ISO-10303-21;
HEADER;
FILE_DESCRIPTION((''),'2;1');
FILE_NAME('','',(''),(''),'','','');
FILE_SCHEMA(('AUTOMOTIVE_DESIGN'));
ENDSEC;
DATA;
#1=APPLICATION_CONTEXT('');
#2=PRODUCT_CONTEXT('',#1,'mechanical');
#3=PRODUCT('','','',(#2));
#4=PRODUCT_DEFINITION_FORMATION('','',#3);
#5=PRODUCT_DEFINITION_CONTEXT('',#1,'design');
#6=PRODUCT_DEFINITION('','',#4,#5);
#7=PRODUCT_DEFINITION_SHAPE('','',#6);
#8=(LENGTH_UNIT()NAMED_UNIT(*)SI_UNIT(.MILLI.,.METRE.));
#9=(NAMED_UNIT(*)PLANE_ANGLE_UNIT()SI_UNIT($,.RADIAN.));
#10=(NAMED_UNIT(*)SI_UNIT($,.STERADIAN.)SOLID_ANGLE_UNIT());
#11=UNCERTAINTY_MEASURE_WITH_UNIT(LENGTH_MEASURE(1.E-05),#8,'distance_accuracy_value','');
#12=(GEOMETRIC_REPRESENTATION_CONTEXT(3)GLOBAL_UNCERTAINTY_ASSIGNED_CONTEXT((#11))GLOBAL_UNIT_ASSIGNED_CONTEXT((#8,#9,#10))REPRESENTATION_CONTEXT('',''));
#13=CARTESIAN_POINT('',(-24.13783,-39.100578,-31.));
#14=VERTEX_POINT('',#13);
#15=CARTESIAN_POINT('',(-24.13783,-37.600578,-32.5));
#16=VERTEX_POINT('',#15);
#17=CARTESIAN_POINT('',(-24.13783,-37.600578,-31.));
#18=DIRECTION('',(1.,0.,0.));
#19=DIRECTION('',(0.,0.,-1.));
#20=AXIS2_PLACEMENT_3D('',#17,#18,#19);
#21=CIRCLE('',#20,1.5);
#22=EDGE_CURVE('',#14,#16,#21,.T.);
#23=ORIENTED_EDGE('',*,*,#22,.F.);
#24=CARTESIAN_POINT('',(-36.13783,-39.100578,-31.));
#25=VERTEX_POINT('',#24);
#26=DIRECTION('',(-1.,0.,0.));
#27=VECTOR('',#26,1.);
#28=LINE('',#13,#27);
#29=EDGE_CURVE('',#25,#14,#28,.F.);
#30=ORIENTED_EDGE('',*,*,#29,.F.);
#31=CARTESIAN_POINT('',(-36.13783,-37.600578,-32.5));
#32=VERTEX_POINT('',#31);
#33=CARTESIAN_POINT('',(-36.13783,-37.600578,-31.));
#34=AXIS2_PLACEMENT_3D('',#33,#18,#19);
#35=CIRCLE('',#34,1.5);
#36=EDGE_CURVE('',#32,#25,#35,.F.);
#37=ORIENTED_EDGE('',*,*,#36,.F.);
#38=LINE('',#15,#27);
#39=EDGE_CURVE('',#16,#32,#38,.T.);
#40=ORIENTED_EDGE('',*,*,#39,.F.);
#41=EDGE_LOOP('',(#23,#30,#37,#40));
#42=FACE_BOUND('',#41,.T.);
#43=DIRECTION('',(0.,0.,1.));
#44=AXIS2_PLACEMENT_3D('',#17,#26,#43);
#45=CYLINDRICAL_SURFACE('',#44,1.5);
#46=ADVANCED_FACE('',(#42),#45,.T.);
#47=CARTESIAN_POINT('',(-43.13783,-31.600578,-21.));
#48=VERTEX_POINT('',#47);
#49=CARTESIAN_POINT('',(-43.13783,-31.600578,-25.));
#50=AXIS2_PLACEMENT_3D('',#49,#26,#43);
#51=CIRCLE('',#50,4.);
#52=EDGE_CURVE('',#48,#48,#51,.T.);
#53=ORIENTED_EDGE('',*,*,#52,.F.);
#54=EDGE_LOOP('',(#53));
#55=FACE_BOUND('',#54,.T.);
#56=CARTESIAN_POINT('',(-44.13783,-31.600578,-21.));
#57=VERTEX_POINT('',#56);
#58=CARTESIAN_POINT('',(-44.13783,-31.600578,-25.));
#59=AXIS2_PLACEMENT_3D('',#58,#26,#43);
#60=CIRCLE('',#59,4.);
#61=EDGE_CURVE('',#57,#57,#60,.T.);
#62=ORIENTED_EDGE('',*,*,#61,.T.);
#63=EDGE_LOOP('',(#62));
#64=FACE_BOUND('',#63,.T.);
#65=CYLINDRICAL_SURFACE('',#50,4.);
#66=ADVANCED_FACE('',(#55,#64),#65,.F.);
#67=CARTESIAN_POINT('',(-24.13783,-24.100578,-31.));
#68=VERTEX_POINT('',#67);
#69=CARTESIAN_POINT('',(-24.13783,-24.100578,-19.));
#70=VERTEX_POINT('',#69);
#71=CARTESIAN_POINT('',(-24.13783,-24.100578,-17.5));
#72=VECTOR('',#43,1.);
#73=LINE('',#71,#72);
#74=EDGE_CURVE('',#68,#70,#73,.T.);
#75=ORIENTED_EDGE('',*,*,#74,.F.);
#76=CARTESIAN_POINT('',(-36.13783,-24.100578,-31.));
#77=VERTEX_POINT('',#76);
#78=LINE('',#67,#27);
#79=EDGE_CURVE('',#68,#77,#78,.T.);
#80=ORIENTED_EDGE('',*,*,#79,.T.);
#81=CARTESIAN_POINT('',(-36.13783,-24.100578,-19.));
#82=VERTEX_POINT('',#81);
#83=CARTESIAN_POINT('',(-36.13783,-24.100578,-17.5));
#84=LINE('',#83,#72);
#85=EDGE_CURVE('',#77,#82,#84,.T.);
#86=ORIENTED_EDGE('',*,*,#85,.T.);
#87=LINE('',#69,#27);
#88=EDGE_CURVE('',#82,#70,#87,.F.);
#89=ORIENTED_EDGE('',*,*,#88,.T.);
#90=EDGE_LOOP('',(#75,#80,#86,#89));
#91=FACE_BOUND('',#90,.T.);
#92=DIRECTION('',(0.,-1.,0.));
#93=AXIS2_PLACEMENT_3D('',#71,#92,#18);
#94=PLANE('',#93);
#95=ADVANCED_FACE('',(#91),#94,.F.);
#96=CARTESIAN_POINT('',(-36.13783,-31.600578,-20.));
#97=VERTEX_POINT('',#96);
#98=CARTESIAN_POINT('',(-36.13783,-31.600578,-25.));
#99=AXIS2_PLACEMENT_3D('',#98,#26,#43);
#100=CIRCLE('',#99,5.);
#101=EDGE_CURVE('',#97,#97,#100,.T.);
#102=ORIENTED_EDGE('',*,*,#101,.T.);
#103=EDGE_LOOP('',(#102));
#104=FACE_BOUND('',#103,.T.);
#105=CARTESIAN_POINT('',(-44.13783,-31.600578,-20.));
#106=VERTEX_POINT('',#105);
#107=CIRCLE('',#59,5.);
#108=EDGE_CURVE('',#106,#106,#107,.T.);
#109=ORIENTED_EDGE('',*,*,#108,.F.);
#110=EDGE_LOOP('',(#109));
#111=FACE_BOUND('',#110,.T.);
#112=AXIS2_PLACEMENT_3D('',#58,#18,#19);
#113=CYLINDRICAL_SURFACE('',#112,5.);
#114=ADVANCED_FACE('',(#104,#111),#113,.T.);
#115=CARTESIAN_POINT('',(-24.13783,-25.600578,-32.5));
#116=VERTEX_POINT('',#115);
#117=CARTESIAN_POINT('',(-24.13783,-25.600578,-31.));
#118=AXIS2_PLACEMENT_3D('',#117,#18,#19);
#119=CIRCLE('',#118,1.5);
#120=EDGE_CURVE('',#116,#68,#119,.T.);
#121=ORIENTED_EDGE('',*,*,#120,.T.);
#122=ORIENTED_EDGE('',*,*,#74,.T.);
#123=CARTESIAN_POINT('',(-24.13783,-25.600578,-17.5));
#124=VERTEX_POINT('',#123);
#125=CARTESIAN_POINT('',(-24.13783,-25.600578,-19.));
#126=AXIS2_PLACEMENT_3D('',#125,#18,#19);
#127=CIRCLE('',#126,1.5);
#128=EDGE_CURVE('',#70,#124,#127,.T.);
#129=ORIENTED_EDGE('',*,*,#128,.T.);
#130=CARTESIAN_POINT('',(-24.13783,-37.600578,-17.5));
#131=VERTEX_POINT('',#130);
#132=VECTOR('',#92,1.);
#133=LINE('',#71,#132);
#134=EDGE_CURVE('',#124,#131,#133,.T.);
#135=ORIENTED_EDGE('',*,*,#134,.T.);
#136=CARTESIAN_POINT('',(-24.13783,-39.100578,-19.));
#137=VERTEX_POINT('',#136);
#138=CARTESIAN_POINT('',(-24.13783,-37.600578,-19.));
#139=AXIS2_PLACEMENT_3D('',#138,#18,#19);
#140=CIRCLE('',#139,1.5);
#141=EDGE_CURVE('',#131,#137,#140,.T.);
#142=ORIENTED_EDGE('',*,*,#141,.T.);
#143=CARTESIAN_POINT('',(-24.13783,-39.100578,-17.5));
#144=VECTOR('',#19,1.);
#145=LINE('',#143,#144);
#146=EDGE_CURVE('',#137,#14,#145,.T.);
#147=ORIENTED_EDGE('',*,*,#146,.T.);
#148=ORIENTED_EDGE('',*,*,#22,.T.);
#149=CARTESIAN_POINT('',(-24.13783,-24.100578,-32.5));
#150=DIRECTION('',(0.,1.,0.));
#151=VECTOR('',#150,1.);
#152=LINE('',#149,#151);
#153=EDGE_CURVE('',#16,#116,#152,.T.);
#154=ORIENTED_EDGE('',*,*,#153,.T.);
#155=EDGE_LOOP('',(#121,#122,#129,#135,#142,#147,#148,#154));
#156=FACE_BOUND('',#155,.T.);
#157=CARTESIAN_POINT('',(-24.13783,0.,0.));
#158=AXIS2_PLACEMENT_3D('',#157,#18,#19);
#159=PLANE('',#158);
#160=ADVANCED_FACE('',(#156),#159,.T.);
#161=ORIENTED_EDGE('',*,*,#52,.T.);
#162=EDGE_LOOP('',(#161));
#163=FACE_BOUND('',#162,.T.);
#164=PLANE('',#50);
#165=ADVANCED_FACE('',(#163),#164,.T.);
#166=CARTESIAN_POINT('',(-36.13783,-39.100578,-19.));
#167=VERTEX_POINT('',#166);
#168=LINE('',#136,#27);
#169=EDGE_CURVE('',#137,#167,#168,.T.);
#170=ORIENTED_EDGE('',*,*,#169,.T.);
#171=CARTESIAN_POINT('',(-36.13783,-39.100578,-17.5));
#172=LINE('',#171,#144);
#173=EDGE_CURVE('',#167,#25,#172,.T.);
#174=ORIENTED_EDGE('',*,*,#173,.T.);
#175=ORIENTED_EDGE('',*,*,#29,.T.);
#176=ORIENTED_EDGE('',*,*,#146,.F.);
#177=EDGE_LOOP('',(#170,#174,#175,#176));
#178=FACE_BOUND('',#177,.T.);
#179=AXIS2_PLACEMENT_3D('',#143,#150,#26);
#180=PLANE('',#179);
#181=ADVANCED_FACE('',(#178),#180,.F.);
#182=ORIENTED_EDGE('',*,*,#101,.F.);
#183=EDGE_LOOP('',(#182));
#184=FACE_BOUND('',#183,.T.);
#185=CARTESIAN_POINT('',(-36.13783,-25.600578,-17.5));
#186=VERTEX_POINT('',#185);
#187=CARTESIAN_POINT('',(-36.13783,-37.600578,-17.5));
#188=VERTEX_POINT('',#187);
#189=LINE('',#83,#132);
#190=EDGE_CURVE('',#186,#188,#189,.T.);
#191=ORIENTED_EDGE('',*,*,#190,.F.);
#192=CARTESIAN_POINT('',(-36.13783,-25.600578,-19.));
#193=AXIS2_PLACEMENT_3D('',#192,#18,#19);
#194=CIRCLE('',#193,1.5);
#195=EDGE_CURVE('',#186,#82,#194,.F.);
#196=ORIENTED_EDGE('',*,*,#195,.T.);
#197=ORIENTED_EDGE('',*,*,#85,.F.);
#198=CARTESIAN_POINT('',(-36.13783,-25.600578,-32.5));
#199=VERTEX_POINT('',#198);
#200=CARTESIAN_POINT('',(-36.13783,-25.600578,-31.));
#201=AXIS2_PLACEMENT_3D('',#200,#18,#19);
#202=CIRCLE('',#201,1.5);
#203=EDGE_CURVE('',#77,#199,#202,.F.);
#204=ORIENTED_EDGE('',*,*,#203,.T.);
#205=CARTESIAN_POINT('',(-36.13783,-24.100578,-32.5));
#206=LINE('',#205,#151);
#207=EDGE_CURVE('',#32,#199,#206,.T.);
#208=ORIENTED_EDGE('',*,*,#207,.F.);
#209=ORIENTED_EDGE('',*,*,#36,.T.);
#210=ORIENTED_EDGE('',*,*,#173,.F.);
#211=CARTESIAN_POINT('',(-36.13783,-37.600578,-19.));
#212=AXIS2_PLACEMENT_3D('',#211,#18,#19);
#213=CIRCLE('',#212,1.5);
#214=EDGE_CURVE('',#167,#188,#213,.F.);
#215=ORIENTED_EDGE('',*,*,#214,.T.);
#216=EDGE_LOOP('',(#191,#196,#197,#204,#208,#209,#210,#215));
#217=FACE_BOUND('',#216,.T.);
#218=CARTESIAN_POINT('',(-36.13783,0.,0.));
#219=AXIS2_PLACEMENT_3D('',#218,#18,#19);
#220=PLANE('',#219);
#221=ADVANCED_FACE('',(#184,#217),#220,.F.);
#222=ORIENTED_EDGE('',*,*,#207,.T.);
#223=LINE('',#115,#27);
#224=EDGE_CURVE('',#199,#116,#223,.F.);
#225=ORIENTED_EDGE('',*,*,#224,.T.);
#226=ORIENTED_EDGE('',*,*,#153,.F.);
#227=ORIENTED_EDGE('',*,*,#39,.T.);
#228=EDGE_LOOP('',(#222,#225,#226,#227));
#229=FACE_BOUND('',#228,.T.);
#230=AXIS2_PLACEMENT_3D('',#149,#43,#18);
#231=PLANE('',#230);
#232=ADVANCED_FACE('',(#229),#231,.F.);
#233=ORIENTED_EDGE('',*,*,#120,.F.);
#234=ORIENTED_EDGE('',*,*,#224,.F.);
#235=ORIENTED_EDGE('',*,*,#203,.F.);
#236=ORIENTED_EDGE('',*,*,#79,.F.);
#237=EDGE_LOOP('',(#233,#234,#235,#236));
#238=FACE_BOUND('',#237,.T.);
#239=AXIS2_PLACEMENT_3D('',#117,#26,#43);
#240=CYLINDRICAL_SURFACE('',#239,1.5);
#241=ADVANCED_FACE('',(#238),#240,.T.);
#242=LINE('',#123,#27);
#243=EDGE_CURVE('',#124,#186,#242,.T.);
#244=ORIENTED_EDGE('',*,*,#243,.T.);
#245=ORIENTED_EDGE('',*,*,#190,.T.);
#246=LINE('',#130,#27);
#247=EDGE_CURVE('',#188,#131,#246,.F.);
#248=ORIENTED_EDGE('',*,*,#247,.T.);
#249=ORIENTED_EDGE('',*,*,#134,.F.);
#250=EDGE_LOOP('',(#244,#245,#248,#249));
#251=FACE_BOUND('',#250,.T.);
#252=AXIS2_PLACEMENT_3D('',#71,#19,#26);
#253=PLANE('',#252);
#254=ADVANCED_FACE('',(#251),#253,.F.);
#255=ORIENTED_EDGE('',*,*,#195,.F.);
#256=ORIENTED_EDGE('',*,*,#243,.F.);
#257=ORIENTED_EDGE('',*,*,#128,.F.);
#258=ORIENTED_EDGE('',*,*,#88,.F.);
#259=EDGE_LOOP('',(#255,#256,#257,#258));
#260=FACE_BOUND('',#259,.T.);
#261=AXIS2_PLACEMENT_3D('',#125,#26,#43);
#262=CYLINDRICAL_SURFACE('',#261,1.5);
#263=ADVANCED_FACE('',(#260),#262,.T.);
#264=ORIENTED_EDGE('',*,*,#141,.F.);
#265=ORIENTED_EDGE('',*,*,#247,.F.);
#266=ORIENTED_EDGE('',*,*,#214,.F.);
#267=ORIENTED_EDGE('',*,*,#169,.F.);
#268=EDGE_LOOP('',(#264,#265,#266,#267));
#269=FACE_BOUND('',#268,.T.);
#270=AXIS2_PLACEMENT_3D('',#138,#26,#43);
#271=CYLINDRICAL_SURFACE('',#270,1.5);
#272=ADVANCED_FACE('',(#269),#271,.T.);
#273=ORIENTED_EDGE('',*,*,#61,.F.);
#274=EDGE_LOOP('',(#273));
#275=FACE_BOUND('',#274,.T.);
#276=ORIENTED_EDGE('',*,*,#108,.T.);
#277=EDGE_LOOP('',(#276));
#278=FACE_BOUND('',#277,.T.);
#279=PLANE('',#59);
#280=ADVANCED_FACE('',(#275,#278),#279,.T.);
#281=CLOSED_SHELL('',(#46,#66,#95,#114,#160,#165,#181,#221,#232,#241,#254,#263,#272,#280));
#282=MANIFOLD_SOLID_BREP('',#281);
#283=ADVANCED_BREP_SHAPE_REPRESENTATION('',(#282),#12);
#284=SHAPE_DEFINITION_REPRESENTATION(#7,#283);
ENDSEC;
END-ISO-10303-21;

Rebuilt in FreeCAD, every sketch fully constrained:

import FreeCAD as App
import Part
import Sketcher
from FreeCAD import Vector


def edges_at(feature, points):
    """Names of the edges that pass closest to the given points."""
    edges = feature.Shape.Edges
    near = lambda p: min(range(len(edges)), key=lambda i: edges[i].distToShape(Part.Vertex(*p))[0])
    return sorted({f"Edge{near(p) + 1}" for p in points})


def add_polygon(sketch, points):
    """Adds a closed chain of lines whose ends are joined by coincident constraints."""
    first, n = sketch.GeometryCount, len(points)
    for a, b in zip(points, points[1:] + points[:1]):
        sketch.addGeometry(Part.LineSegment(App.Vector(*a, 0), App.Vector(*b, 0)), False)
    for i in range(n):
        sketch.addConstraint(Sketcher.Constraint("Coincident", first + i, 2, first + (i + 1) % n, 1))

doc = App.newDocument("Part")
body = doc.addObject("PartDesign::Body", "Body")

sketch1 = body.newObject("Sketcher::SketchObject", "Sketch")
sketch1.AttachmentSupport = (doc.getObject("YZ_Plane"), [""])
sketch1.MapMode = "FlatFace"
sketch1.AttachmentOffset = App.Placement(Vector(0, 0, -36.13783), App.Rotation())
sketch1.addGeometry(Part.Circle(Vector(-32, -25, 0), Vector(0, 0, 1), 5), False)
sketch1.addConstraint(Sketcher.Constraint("Diameter", 0, 10.0))
sketch1.addConstraint(Sketcher.Constraint("DistanceY", 0, 3, -1, 1, 25.0))
sketch1.addConstraint(Sketcher.Constraint("DistanceX", 0, 3, -1, 1, 31.600578))
pad1 = body.newObject("PartDesign::Pad", "Pad")
pad1.Profile = sketch1
pad1.Length = 8
pad1.Reversed = True

sketch2 = body.newObject("Sketcher::SketchObject", "Sketch001")
sketch2.AttachmentSupport = (doc.getObject("YZ_Plane"), [""])
sketch2.MapMode = "FlatFace"
sketch2.AttachmentOffset = App.Placement(Vector(0, 0, -36.13783), App.Rotation())
add_polygon(sketch2, [(-24, -18), (-39, -18), (-39, -32), (-24, -32)])
sketch2.addConstraint(Sketcher.Constraint("Horizontal", 0))
sketch2.addConstraint(Sketcher.Constraint("Vertical", 1))
sketch2.addConstraint(Sketcher.Constraint("Horizontal", 2))
sketch2.addConstraint(Sketcher.Constraint("Vertical", 3))
sketch2.addConstraint(Sketcher.Constraint("Equal", 2, 1))
sketch2.addConstraint(Sketcher.Constraint("DistanceX", 0, 2, 0, 1, 15.0))
sketch2.addConstraint(Sketcher.Constraint("DistanceY", 0, 2, -1, 1, 17.5))
sketch2.addConstraint(Sketcher.Constraint("DistanceX", 0, 2, -1, 1, 39.100578))
pad2 = body.newObject("PartDesign::Pad", "Pad001")
pad2.Profile = sketch2
pad2.Length = 12

sketch3 = body.newObject("Sketcher::SketchObject", "Sketch002")
sketch3.AttachmentSupport = (doc.getObject("YZ_Plane"), [""])
sketch3.MapMode = "FlatFace"
sketch3.AttachmentOffset = App.Placement(Vector(0, 0, -44.13783), App.Rotation())
sketch3.addGeometry(Part.Circle(Vector(-31.6, -25, 0), Vector(0, 0, 1), 4), False)
sketch3.addConstraint(Sketcher.Constraint("Diameter", 0, 8.0))
sketch3.addConstraint(Sketcher.Constraint("DistanceY", 0, 3, -1, 1, 25.0))
sketch3.addConstraint(Sketcher.Constraint("DistanceX", 0, 3, -1, 1, 31.600578))
pocket1 = body.newObject("PartDesign::Pocket", "Pocket")
pocket1.Profile = sketch3
pocket1.Length = 1
pocket1.Reversed = True
doc.recompute()

fillet = body.newObject("PartDesign::Fillet", "Fillet")
fillet.Base = (pocket1, edges_at(pocket1, [
    (-30.138, -24.101, -17.5),
    (-30.138, -24.101, -32.5),
    (-30.138, -39.101, -17.5),
    (-30.138, -39.101, -32.5),
]))
fillet.Radius = 1.5

doc.recompute()
